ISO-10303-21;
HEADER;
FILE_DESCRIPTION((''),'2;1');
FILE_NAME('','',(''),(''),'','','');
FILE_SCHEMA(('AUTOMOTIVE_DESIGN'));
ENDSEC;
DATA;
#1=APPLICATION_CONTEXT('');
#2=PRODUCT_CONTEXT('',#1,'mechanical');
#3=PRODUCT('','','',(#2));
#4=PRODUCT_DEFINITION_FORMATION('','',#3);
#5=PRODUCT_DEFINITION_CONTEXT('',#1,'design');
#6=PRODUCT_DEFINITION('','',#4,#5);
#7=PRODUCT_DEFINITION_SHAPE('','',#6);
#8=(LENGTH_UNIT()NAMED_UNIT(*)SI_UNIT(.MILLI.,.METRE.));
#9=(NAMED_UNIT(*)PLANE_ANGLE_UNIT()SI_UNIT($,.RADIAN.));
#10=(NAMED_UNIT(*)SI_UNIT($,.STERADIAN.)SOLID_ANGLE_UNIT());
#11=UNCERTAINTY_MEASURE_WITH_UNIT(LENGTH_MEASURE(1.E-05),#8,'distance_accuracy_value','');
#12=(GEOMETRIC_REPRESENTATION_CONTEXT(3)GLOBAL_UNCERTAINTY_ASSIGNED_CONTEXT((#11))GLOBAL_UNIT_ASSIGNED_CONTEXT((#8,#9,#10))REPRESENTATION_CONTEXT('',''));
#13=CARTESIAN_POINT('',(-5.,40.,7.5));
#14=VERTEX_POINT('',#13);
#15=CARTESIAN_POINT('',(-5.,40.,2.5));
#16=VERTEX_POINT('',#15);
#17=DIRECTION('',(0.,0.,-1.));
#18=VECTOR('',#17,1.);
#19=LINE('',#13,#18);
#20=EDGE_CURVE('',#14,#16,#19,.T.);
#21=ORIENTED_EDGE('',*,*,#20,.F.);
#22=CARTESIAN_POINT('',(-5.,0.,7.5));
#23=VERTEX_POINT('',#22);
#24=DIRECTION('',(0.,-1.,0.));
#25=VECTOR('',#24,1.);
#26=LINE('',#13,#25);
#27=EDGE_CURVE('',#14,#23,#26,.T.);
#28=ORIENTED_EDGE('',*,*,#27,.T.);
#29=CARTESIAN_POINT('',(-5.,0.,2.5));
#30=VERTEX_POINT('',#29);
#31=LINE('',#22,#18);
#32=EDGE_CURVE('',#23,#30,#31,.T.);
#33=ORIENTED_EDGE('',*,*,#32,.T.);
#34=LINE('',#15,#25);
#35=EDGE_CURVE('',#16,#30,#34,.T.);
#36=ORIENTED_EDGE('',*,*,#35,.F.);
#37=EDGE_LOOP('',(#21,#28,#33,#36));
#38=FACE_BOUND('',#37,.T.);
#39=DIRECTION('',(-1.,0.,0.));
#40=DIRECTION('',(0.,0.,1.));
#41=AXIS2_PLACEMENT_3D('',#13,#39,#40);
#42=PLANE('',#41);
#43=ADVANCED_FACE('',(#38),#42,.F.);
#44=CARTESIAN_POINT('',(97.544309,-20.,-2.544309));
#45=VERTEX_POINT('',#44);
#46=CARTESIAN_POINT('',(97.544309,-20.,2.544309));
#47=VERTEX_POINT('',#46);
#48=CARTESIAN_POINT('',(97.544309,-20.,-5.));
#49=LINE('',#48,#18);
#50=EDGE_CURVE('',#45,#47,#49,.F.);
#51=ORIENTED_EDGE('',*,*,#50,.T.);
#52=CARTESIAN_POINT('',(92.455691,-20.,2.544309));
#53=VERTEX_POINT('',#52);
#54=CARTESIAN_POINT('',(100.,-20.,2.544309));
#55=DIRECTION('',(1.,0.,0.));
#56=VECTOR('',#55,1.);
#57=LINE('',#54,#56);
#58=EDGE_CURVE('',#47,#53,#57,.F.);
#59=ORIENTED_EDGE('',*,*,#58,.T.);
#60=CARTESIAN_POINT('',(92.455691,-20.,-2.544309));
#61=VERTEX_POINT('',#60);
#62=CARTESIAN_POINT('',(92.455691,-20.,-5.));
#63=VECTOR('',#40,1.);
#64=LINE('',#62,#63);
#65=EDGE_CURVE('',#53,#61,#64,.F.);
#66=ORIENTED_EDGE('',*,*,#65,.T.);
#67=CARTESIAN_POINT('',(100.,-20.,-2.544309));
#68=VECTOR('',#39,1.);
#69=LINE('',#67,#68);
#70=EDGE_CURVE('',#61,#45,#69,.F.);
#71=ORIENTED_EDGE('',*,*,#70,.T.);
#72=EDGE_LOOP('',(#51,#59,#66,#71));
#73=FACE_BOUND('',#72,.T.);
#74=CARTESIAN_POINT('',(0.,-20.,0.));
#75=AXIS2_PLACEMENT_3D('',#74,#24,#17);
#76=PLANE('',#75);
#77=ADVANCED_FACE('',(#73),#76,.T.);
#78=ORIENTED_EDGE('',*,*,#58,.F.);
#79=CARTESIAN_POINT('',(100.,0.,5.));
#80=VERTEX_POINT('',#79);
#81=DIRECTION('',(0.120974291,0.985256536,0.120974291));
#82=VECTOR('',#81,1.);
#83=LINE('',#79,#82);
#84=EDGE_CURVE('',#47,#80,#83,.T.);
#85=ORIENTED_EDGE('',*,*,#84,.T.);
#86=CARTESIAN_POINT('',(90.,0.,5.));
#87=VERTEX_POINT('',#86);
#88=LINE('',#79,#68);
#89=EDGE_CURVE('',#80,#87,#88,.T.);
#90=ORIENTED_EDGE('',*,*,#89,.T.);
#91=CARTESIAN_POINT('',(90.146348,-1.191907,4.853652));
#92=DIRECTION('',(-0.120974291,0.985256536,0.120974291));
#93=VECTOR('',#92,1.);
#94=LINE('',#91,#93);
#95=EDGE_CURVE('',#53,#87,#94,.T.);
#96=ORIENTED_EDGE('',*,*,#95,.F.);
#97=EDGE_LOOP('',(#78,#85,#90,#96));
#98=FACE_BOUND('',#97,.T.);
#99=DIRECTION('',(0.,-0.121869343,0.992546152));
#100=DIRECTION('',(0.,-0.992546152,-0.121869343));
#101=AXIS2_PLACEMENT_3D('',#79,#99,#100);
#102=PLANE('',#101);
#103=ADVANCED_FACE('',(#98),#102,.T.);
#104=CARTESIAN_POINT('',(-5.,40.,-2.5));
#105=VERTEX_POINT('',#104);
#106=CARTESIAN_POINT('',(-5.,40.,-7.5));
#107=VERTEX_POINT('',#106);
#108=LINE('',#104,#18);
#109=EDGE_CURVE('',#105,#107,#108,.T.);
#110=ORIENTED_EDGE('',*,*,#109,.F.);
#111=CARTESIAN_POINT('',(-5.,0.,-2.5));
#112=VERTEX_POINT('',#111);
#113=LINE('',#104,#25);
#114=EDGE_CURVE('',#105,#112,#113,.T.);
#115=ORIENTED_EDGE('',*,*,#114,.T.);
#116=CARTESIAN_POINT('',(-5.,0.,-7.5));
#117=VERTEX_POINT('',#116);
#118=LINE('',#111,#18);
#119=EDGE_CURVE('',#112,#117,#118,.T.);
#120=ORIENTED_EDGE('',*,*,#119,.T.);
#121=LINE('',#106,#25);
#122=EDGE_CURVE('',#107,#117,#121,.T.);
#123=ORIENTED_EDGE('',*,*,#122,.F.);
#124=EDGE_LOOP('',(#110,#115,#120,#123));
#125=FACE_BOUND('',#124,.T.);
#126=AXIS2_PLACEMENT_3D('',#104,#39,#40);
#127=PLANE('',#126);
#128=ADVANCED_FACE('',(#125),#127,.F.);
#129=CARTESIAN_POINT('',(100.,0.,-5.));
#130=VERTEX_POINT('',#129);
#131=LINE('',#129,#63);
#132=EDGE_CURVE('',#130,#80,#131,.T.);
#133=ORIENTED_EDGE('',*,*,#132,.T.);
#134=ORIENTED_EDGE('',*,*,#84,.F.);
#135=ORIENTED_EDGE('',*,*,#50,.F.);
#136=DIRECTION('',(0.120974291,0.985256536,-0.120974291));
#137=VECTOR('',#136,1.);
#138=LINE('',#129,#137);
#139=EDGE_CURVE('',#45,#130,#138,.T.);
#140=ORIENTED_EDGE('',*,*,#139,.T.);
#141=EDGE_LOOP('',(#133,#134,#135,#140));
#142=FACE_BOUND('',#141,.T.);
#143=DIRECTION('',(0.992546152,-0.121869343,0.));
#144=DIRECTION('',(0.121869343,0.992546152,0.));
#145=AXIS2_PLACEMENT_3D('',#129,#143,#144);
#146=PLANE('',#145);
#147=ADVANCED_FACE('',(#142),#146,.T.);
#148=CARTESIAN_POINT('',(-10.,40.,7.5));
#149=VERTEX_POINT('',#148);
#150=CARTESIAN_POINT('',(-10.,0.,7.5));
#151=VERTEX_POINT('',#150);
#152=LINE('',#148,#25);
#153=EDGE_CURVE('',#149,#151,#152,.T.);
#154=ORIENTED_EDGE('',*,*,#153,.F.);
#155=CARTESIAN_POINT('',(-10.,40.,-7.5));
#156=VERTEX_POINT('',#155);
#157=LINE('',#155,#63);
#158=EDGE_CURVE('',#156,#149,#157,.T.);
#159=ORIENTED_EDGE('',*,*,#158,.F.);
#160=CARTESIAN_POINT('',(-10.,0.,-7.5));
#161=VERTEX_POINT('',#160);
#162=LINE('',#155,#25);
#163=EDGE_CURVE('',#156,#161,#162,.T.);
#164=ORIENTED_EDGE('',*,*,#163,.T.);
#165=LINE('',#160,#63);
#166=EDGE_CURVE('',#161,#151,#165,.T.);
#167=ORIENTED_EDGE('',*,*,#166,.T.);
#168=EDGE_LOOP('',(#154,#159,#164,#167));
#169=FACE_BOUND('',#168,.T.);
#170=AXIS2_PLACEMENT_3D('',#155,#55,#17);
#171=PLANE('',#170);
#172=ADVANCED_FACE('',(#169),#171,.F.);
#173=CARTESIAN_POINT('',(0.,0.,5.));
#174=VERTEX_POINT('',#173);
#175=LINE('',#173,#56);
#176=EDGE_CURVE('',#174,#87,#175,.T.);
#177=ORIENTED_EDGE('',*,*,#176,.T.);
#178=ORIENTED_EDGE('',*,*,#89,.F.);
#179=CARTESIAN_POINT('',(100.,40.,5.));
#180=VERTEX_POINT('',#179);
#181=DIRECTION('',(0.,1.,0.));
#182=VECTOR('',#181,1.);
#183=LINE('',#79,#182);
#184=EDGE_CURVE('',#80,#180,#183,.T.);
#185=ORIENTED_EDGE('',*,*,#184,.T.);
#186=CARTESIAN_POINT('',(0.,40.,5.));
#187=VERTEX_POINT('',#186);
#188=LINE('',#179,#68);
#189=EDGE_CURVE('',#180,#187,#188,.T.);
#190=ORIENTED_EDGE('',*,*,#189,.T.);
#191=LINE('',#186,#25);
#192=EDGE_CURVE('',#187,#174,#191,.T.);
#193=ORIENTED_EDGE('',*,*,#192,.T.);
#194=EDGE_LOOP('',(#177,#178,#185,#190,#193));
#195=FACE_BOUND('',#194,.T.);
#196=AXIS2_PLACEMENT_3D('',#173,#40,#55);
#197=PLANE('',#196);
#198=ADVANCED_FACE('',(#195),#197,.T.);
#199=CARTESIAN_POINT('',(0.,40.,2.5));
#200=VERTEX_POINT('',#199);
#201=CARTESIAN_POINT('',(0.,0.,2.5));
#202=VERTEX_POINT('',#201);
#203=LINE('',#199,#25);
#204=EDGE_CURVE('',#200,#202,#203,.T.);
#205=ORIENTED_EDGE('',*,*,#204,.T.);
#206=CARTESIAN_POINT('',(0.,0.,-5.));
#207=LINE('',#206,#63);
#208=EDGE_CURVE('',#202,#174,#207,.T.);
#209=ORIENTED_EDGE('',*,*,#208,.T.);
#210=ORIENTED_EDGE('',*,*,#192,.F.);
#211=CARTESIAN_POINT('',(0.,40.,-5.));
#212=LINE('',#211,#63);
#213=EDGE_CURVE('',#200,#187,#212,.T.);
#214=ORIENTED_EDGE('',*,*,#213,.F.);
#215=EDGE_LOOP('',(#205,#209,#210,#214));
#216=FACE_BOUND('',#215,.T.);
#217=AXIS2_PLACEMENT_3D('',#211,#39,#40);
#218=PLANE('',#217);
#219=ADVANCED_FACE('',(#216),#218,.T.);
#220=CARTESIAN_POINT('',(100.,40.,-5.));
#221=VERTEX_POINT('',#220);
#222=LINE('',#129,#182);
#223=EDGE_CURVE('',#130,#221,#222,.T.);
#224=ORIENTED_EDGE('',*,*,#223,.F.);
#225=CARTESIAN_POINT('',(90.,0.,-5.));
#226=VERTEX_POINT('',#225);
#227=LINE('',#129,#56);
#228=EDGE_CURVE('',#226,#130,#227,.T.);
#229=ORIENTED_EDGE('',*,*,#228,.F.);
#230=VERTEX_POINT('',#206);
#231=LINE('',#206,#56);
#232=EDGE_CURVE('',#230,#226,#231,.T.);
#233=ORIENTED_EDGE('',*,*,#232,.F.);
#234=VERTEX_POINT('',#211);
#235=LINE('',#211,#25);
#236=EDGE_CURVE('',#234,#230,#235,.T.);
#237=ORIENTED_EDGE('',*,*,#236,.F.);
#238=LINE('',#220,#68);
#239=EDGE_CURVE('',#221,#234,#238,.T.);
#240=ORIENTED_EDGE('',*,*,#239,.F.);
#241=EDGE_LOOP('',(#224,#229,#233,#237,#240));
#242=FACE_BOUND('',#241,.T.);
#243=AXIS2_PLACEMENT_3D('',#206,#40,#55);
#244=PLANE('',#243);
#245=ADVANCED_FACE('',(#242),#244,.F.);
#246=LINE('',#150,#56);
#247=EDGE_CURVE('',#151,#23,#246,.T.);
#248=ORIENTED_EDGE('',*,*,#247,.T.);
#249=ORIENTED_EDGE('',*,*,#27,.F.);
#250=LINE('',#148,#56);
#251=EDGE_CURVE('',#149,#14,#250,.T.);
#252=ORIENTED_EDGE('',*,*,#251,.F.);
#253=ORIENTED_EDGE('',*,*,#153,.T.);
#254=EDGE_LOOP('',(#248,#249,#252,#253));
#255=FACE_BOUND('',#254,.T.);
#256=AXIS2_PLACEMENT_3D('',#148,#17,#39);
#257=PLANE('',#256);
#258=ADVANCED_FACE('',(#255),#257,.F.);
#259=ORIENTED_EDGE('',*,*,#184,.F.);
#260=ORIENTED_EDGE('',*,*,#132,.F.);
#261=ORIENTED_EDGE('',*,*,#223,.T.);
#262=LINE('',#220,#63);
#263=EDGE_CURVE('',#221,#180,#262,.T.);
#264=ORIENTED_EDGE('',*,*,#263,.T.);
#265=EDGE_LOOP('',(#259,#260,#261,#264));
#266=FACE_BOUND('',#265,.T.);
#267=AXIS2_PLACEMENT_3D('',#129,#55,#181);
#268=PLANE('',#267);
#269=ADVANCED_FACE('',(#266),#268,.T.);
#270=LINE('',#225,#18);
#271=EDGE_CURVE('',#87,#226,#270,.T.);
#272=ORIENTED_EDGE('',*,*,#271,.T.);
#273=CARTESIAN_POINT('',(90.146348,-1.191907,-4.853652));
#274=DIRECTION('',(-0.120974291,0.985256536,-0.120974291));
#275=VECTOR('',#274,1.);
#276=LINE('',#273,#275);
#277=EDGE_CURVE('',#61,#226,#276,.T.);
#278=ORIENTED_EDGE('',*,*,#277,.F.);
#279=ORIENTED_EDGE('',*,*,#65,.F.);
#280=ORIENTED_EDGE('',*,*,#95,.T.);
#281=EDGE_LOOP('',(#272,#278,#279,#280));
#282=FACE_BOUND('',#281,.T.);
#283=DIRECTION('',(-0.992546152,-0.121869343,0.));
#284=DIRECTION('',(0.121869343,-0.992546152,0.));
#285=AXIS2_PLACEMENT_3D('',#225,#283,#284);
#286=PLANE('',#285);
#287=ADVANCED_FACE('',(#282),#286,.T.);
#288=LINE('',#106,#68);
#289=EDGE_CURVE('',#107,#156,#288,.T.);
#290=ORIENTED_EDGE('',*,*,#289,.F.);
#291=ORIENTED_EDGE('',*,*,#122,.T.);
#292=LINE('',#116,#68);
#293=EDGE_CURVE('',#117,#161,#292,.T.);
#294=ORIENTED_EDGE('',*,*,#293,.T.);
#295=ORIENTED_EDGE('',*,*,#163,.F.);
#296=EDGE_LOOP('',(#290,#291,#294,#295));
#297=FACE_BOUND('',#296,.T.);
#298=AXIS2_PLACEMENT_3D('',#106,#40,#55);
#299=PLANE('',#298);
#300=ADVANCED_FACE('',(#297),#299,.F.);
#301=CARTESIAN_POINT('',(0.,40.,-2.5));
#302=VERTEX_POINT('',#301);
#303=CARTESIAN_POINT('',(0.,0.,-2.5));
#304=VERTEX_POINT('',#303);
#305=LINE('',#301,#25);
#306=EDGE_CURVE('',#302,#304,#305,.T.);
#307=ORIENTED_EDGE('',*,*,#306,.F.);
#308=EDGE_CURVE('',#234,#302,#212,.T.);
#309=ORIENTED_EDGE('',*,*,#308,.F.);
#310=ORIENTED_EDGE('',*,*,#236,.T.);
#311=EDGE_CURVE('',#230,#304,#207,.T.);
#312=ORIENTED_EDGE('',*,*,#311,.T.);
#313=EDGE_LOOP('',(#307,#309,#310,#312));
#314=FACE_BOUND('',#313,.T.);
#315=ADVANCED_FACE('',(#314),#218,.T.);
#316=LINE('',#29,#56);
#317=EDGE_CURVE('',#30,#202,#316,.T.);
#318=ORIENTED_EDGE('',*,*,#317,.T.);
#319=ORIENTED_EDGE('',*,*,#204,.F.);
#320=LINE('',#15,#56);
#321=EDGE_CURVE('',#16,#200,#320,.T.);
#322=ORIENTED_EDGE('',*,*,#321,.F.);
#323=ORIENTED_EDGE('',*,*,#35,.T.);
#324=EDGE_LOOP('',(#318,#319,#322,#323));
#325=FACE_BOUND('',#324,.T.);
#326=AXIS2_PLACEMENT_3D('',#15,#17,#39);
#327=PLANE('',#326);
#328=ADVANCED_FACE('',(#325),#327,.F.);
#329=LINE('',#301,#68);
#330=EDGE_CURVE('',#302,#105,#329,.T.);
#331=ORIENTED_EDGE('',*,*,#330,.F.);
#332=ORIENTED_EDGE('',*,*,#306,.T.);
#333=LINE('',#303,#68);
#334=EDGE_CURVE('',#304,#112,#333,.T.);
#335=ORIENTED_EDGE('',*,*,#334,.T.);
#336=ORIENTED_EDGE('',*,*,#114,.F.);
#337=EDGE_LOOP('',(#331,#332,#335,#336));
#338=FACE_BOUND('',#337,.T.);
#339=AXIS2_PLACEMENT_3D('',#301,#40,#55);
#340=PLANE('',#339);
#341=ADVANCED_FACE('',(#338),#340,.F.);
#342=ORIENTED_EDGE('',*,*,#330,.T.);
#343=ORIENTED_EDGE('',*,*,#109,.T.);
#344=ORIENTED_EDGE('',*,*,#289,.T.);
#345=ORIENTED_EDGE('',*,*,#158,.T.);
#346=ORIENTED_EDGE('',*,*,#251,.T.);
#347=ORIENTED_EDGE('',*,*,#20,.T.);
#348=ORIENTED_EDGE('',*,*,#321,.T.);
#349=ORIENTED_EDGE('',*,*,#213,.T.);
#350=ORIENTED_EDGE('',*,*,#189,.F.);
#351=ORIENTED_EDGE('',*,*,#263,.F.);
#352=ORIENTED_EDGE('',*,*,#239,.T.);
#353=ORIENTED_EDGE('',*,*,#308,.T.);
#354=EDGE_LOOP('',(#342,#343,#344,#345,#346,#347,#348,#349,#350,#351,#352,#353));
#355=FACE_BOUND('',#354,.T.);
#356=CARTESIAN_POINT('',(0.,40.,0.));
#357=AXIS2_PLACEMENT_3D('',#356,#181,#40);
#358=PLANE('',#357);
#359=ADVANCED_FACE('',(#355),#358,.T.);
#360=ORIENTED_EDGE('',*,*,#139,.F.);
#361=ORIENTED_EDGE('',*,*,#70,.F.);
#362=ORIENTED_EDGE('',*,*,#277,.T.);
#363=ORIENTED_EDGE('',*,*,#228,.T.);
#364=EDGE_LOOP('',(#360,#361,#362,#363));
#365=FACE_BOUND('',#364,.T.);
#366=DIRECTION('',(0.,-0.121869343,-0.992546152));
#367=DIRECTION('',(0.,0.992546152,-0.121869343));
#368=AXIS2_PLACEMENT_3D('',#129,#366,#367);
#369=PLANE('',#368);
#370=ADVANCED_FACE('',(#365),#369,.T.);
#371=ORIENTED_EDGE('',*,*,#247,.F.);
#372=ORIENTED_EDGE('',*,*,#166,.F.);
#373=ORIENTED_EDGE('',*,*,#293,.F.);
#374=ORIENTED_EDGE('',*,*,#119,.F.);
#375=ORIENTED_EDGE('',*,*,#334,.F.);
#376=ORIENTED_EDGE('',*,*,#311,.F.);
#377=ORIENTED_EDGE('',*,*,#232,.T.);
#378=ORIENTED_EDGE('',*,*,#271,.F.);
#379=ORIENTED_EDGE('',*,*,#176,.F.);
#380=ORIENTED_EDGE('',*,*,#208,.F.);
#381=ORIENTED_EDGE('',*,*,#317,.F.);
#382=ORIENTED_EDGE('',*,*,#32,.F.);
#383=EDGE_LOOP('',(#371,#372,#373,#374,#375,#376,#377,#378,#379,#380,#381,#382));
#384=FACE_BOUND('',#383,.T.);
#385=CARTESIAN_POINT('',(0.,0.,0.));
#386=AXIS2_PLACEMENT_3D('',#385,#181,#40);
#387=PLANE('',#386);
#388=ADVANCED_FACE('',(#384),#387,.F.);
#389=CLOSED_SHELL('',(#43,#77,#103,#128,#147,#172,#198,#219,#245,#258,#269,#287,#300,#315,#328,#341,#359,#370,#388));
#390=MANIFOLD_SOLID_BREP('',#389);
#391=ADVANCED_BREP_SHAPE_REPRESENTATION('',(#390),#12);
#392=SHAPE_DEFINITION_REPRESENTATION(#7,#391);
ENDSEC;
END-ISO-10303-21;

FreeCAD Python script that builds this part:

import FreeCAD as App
import Part
import Sketcher
from FreeCAD import Vector
Q = App.Units.Quantity

doc = App.newDocument("Part")
params = doc.addObject("Spreadsheet::Sheet", "Params")
for row, (alias, value) in enumerate([
    ("sketch1_width", "5 mm"),
    ("pad1_length", "40 mm"),
    ("sketch2_width", "100 mm"),
    ("sketch2_height", "40 mm"),
    ("pad2_length", "5 mm"),
    ("pad2_length2", "5 mm"),
    ("sketch3_width", "10 mm"),
    ("pad3_length", "20 mm"),
    ("pad3_taper", "-7 deg"),
], start=1):
    params.set(f"A{row}", alias)
    params.set(f"B{row}", "=" + value)
    params.setAlias(f"B{row}", alias)

body = doc.addObject("PartDesign::Body", "Body")

sketch1 = body.newObject("Sketcher::SketchObject", "Sketch")
sketch1.AttachmentSupport = (doc.getObject("XZ_Plane"), [""])
sketch1.MapMode = "FlatFace"
sketch1.addGeometry(Part.LineSegment(Vector(-10, -8, 0), Vector(-10, 8, 0)), False)
sketch1.addGeometry(Part.LineSegment(Vector(-10, 8, 0), Vector(-5, 8, 0)), False)
sketch1.addGeometry(Part.LineSegment(Vector(-5, 8, 0), Vector(-5, 2, 0)), False)
sketch1.addGeometry(Part.LineSegment(Vector(-5, 2, 0), Vector(0, 2, 0)), False)
sketch1.addGeometry(Part.LineSegment(Vector(0, 2, 0), Vector(0, -2, 0)), False)
sketch1.addGeometry(Part.LineSegment(Vector(0, -2, 0), Vector(-5, -2, 0)), False)
sketch1.addGeometry(Part.LineSegment(Vector(-5, -2, 0), Vector(-5, -8, 0)), False)
sketch1.addGeometry(Part.LineSegment(Vector(-5, -8, 0), Vector(-10, -8, 0)), False)
sketch1.addConstraint(Sketcher.Constraint("Coincident", 0, 2, 1, 1))
sketch1.addConstraint(Sketcher.Constraint("Coincident", 1, 2, 2, 1))
sketch1.addConstraint(Sketcher.Constraint("Coincident", 2, 2, 3, 1))
sketch1.addConstraint(Sketcher.Constraint("Coincident", 3, 2, 4, 1))
sketch1.addConstraint(Sketcher.Constraint("Coincident", 4, 2, 5, 1))
sketch1.addConstraint(Sketcher.Constraint("Coincident", 5, 2, 6, 1))
sketch1.addConstraint(Sketcher.Constraint("Coincident", 6, 2, 7, 1))
sketch1.addConstraint(Sketcher.Constraint("Coincident", 7, 2, 0, 1))
sketch1.addConstraint(Sketcher.Constraint("Vertical", 0))
sketch1.addConstraint(Sketcher.Constraint("Horizontal", 1))
sketch1.addConstraint(Sketcher.Constraint("Vertical", 2))
sketch1.addConstraint(Sketcher.Constraint("Horizontal", 3))
sketch1.addConstraint(Sketcher.Constraint("Vertical", 4))
sketch1.addConstraint(Sketcher.Constraint("Horizontal", 5))
sketch1.addConstraint(Sketcher.Constraint("Vertical", 6))
sketch1.addConstraint(Sketcher.Constraint("Horizontal", 7))
sketch1.addConstraint(Sketcher.Constraint("Symmetric", 3, 2, 4, 2, -1, 1))
sketch1.addConstraint(Sketcher.Constraint("Symmetric", 1, 2, 6, 2, -1))
sketch1.addConstraint(Sketcher.Constraint("Equal", 1, 3))
sketch1.addConstraint(Sketcher.Constraint("Equal", 7, 2))
sketch1.addConstraint(Sketcher.Constraint("Equal", 2, 4))
sketch1.addConstraint(Sketcher.Constraint("DistanceX", 1, 1, 1, 2, Q("5 mm")))
sketch1.setExpression("Constraints[21]", "Params.sketch1_width")
pad1 = body.newObject("PartDesign::Pad", "Pad")
pad1.Profile = sketch1
pad1.setExpression("Length", "Params.pad1_length")
pad1.Reversed = True

sketch2 = body.newObject("Sketcher::SketchObject", "Sketch001")
sketch2.AttachmentSupport = (doc.getObject("XY_Plane"), [""])
sketch2.MapMode = "FlatFace"
sketch2.addGeometry(Part.LineSegment(Vector(0, 40, 0), Vector(0, 0, 0)), False)
sketch2.addGeometry(Part.LineSegment(Vector(0, 0, 0), Vector(100, 0, 0)), False)
sketch2.addGeometry(Part.LineSegment(Vector(100, 0, 0), Vector(100, 40, 0)), False)
sketch2.addGeometry(Part.LineSegment(Vector(100, 40, 0), Vector(0, 40, 0)), False)
sketch2.addConstraint(Sketcher.Constraint("Coincident", 0, 2, 1, 1))
sketch2.addConstraint(Sketcher.Constraint("Coincident", 1, 2, 2, 1))
sketch2.addConstraint(Sketcher.Constraint("Coincident", 2, 2, 3, 1))
sketch2.addConstraint(Sketcher.Constraint("Coincident", 3, 2, 0, 1))
sketch2.addConstraint(Sketcher.Constraint("Vertical", 0))
sketch2.addConstraint(Sketcher.Constraint("Horizontal", 1))
sketch2.addConstraint(Sketcher.Constraint("Vertical", 2))
sketch2.addConstraint(Sketcher.Constraint("Horizontal", 3))
sketch2.addConstraint(Sketcher.Constraint("Coincident", 0, 2, -1, 1))
sketch2.addConstraint(Sketcher.Constraint("DistanceX", 1, 1, 1, 2, Q("100 mm")))
sketch2.addConstraint(Sketcher.Constraint("DistanceY", 0, 2, 0, 1, Q("40 mm")))
sketch2.setExpression("Constraints[9]", "Params.sketch2_width")
sketch2.setExpression("Constraints[10]", "Params.sketch2_height")
pad2 = body.newObject("PartDesign::Pad", "Pad001")
pad2.Profile = sketch2
pad2.Type = "TwoLengths"
pad2.setExpression("Length", "Params.pad2_length")
pad2.setExpression("Length2", "Params.pad2_length2")

sketch3 = body.newObject("Sketcher::SketchObject", "Sketch002")
sketch3.AttachmentSupport = (doc.getObject("XZ_Plane"), [""])
sketch3.MapMode = "FlatFace"
sketch3.addGeometry(Part.LineSegment(Vector(90, 5, 0), Vector(90, -5, 0)), False)
sketch3.addGeometry(Part.LineSegment(Vector(90, -5, 0), Vector(100, -5, 0)), False)
sketch3.addGeometry(Part.LineSegment(Vector(100, -5, 0), Vector(100, 5, 0)), False)
sketch3.addGeometry(Part.LineSegment(Vector(100, 5, 0), Vector(90, 5, 0)), False)
sketch3.addConstraint(Sketcher.Constraint("Coincident", 0, 2, 1, 1))
sketch3.addConstraint(Sketcher.Constraint("Coincident", 1, 2, 2, 1))
sketch3.addConstraint(Sketcher.Constraint("Coincident", 2, 2, 3, 1))
sketch3.addConstraint(Sketcher.Constraint("Coincident", 3, 2, 0, 1))
sketch3.addConstraint(Sketcher.Constraint("Vertical", 0))
sketch3.addConstraint(Sketcher.Constraint("Horizontal", 1))
sketch3.addConstraint(Sketcher.Constraint("Vertical", 2))
sketch3.addConstraint(Sketcher.Constraint("Horizontal", 3))
sketch3.addConstraint(Sketcher.Constraint("Equal", 3, 0))
sketch3.addConstraint(Sketcher.Constraint("DistanceX", 1, 1, 1, 2, Q("10 mm")))
sketch3.addConstraint(Sketcher.Constraint("DistanceX", -1, 1, 0, 2, Q("90 mm")))
sketch3.addConstraint(Sketcher.Constraint("DistanceY", 0, 2, -1, 1, Q("5 mm")))
sketch3.setExpression("Constraints[9]", "Params.sketch3_width")
pad3 = body.newObject("PartDesign::Pad", "Pad002")
pad3.Profile = sketch3
pad3.setExpression("Length", "Params.pad3_length")
pad3.setExpression("TaperAngle", "Params.pad3_taper")

doc.recompute()
